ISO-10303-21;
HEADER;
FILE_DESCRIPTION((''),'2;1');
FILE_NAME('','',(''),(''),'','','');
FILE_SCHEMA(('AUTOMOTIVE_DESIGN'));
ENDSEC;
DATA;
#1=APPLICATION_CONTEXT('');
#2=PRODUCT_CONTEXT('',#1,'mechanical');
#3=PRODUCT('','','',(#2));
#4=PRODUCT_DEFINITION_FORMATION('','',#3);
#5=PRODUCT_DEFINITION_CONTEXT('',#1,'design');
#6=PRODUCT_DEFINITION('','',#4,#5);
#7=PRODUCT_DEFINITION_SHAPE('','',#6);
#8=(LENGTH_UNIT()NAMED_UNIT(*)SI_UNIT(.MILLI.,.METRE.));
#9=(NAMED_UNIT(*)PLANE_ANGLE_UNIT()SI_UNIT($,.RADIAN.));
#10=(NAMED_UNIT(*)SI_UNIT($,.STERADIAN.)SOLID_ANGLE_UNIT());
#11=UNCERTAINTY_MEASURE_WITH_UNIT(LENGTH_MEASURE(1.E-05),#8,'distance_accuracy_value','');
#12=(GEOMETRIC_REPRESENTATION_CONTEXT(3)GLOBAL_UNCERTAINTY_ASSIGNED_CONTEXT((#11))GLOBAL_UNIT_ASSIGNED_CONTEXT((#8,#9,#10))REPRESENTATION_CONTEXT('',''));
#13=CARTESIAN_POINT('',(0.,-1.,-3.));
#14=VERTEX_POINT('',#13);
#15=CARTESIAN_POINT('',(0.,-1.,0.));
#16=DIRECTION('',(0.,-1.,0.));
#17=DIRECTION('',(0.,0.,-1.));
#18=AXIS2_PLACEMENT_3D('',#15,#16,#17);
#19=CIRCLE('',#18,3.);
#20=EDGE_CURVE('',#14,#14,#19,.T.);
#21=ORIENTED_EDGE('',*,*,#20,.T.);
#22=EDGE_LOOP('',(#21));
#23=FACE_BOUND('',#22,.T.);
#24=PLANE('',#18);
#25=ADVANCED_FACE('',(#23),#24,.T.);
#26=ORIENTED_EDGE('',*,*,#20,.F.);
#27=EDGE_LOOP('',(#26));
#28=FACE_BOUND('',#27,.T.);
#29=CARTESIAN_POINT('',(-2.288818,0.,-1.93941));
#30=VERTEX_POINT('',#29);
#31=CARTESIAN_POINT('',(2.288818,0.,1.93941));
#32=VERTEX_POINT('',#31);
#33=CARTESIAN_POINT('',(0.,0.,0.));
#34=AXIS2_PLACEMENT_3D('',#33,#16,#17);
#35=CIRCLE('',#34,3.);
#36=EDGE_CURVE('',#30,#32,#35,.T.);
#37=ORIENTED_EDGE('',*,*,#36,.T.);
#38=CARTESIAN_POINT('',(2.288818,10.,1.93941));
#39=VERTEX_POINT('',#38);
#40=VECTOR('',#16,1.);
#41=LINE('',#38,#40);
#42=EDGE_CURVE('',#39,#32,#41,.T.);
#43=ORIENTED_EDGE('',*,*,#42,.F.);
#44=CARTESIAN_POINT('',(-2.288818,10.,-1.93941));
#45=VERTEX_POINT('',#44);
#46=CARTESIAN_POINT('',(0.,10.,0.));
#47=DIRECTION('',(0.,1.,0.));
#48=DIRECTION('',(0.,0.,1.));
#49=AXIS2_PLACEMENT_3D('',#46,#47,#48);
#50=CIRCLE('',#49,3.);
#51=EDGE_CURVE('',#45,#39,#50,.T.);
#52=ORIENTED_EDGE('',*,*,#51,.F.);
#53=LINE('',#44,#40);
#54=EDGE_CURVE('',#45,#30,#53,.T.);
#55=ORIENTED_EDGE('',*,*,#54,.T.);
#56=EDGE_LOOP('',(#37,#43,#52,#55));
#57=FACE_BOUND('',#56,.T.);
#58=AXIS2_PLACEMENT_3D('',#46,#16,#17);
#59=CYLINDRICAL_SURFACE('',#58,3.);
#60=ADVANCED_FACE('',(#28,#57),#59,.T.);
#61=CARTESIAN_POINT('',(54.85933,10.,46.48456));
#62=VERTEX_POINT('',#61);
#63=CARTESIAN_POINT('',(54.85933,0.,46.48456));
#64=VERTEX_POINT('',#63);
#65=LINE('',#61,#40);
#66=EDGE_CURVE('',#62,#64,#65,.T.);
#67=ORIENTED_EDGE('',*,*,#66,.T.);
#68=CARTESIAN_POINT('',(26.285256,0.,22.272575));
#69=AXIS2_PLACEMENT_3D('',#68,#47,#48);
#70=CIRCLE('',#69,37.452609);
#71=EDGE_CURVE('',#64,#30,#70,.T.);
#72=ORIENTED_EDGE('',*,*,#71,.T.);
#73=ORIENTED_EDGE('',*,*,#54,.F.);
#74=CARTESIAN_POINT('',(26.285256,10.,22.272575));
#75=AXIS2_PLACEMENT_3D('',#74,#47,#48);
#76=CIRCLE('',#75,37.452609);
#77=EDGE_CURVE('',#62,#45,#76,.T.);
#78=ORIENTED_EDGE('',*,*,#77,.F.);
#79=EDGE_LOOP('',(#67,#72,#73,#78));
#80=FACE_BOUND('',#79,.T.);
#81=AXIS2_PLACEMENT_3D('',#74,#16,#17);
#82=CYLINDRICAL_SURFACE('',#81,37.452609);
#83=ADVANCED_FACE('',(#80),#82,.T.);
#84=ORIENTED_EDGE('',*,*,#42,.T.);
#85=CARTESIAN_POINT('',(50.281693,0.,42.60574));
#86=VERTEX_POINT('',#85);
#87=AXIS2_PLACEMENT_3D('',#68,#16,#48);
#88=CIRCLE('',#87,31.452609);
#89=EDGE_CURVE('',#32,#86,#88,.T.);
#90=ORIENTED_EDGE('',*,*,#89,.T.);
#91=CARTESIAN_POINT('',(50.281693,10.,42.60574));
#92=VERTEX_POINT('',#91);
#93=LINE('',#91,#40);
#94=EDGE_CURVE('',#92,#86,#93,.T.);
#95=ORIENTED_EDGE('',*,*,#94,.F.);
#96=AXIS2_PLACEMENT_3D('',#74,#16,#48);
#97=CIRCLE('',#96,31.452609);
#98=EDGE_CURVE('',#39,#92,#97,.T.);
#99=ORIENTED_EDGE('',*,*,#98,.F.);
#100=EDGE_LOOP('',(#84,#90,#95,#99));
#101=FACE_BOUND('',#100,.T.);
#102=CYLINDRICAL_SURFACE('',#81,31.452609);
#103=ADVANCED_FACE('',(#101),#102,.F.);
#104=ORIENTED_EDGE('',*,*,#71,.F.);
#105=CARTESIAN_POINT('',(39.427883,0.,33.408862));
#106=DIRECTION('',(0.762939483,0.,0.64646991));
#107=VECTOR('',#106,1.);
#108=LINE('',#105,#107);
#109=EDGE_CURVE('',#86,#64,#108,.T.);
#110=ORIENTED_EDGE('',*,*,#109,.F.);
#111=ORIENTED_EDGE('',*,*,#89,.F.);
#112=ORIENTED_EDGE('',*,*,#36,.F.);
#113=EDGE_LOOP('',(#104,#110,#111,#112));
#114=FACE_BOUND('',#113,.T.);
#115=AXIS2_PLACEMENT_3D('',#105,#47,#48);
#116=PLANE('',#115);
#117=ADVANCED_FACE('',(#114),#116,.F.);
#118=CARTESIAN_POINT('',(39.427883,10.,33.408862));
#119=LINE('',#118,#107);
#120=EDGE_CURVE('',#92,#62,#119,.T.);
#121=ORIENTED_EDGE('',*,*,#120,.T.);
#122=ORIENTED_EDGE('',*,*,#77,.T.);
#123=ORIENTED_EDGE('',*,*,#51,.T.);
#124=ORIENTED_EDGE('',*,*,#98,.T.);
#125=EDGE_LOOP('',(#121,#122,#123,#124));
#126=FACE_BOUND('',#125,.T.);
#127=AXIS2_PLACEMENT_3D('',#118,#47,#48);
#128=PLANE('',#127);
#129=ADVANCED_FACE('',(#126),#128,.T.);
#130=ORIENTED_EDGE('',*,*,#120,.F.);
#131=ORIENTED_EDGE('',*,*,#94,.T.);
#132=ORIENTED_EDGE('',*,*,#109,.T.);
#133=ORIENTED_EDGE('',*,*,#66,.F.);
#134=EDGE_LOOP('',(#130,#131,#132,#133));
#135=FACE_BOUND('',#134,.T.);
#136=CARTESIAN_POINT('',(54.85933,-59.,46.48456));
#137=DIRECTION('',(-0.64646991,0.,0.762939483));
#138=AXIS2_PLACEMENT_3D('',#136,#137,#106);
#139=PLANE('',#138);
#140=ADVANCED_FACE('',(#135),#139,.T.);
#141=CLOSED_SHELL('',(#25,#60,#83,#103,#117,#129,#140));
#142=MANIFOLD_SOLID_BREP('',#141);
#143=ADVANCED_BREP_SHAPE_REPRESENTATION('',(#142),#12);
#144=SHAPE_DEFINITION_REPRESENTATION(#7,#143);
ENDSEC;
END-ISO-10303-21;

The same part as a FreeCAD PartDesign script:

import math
import FreeCAD as App
import Part
import Sketcher
from FreeCAD import Vector

doc = App.newDocument("Part")
params = doc.addObject("Spreadsheet::Sheet", "Params")
for row, (alias, value) in enumerate([
    ("sketch1_radius", "3 mm"),
    ("pad1_length", "10 mm"),
    ("sketch2_diameter", "6 mm"),
    ("pad2_length", "1 mm"),
    ("sketch3_radius", "3 mm"),
], start=1):
    params.set(f"A{row}", alias)
    params.set(f"B{row}", "=" + value)
    params.setAlias(f"B{row}", alias)

body = doc.addObject("PartDesign::Body", "Body")

# Sketch on XZ plane
sketch1 = body.newObject("Sketcher::SketchObject", "Sketch")
sketch1.AttachmentSupport = (doc.getObject("XZ_Plane"), [""])
sketch1.MapMode = "FlatFace"
sketch1.addGeometry([
    Part.ArcOfCircle(Part.Circle(Vector(26.3, 22.3, 0), Vector(0, 0, 1), 37.5), math.radians(-140), math.radians(40)),
    Part.ArcOfCircle(Part.Circle(Vector(0, 0, 0), Vector(0, 0, 1), 3), math.radians(40), math.radians(220)),
    Part.ArcOfCircle(Part.Circle(Vector(26.3, 22.3, 0), Vector(0, 0, 1), 31.5), math.radians(-140), math.radians(40)),
    Part.ArcOfCircle(Part.Circle(Vector(52.6, 44.5, 0), Vector(0, 0, 1), 3), math.radians(40), math.radians(220)),
], False)
sketch1.addConstraint([
    Sketcher.Constraint("Tangent", 0, 1, 1, 2),
    Sketcher.Constraint("Tangent", 1, 1, 2, 1),
    Sketcher.Constraint("Tangent", 2, 2, 3, 2),
    Sketcher.Constraint("Tangent", 3, 1, 0, 2),
    Sketcher.Constraint("Coincident", 1, 3, -1, 1),
    Sketcher.Constraint("Coincident", 2, 3, 0, 3),
    Sketcher.Constraint("Radius", 1, 3.0),
    Sketcher.Constraint("Radius", 0, 37.452609),
    Sketcher.Constraint("DistanceX", -1, 1, 3, 3, 52.570511),
    Sketcher.Constraint("DistanceX", -1, 1, 1, 1, 2.288818),
])
sketch1.setExpression("Constraints[6]", "Params.sketch1_radius")
pad1 = body.newObject("PartDesign::Pad", "Pad")
pad1.Profile = sketch1
pad1.setExpression("Length", "Params.pad1_length")
pad1.Reversed = True

# Sketch on XZ plane
sketch2 = body.newObject("Sketcher::SketchObject", "Sketch001")
sketch2.AttachmentSupport = (doc.getObject("XZ_Plane"), [""])
sketch2.MapMode = "FlatFace"
sketch2.AttachmentOffset = App.Placement(Vector(0, 0, 1), App.Rotation())
sketch2.addGeometry(Part.Circle(Vector(0, 0, 0), Vector(0, 0, 1), 3), False)
sketch2.addConstraint([
    Sketcher.Constraint("Coincident", 0, 3, -1, 1),
    Sketcher.Constraint("Diameter", 0, 6.0),
])
sketch2.setExpression("Constraints[1]", "Params.sketch2_diameter")
pad2 = body.newObject("PartDesign::Pad", "Pad001")
pad2.Profile = sketch2
pad2.setExpression("Length", "Params.pad2_length")
pad2.Reversed = True

# Sketch on XZ plane
sketch3 = body.newObject("Sketcher::SketchObject", "Sketch002")
sketch3.AttachmentSupport = (doc.getObject("XZ_Plane"), [""])
sketch3.MapMode = "FlatFace"
sketch3.addGeometry([
    Part.LineSegment(Vector(50.3, 42.6, 0), Vector(54.9, 46.5, 0)),
    Part.ArcOfCircle(Part.Circle(Vector(52.6, 44.5, 0), Vector(0, 0, 1), 3), math.radians(40), math.radians(130)),
    Part.ArcOfCircle(Part.Circle(Vector(52.6, 44.5, 0), Vector(0, 0, 1), 3), math.radians(130), math.radians(220)),
], False)
sketch3.addConstraint([
    Sketcher.Constraint("Coincident", 0, 2, 1, 1),
    Sketcher.Constraint("Tangent", 1, 2, 2, 1),
    Sketcher.Constraint("Coincident", 2, 2, 0, 1),
    Sketcher.Constraint("Equal", 1, 2),
    Sketcher.Constraint("Radius", 1, 3.0),
    Sketcher.Constraint("DistanceX", -1, 1, 1, 2, 50.631101),
    Sketcher.Constraint("DistanceX", -1, 1, 1, 3, 52.570511),
    Sketcher.Constraint("DistanceY", -1, 1, 1, 3, 44.54515),
    Sketcher.Constraint("DistanceX", -1, 1, 0, 2, 54.85933),
    Sketcher.Constraint("DistanceY", -1, 1, 2, 2, 42.60574),
])
sketch3.setExpression("Constraints[4]", "Params.sketch3_radius")
pocket1 = body.newObject("PartDesign::Pocket", "Pocket")
pocket1.Profile = sketch3
pocket1.Type = "ThroughAll"
pocket1.Midplane = True

doc.recompute()
